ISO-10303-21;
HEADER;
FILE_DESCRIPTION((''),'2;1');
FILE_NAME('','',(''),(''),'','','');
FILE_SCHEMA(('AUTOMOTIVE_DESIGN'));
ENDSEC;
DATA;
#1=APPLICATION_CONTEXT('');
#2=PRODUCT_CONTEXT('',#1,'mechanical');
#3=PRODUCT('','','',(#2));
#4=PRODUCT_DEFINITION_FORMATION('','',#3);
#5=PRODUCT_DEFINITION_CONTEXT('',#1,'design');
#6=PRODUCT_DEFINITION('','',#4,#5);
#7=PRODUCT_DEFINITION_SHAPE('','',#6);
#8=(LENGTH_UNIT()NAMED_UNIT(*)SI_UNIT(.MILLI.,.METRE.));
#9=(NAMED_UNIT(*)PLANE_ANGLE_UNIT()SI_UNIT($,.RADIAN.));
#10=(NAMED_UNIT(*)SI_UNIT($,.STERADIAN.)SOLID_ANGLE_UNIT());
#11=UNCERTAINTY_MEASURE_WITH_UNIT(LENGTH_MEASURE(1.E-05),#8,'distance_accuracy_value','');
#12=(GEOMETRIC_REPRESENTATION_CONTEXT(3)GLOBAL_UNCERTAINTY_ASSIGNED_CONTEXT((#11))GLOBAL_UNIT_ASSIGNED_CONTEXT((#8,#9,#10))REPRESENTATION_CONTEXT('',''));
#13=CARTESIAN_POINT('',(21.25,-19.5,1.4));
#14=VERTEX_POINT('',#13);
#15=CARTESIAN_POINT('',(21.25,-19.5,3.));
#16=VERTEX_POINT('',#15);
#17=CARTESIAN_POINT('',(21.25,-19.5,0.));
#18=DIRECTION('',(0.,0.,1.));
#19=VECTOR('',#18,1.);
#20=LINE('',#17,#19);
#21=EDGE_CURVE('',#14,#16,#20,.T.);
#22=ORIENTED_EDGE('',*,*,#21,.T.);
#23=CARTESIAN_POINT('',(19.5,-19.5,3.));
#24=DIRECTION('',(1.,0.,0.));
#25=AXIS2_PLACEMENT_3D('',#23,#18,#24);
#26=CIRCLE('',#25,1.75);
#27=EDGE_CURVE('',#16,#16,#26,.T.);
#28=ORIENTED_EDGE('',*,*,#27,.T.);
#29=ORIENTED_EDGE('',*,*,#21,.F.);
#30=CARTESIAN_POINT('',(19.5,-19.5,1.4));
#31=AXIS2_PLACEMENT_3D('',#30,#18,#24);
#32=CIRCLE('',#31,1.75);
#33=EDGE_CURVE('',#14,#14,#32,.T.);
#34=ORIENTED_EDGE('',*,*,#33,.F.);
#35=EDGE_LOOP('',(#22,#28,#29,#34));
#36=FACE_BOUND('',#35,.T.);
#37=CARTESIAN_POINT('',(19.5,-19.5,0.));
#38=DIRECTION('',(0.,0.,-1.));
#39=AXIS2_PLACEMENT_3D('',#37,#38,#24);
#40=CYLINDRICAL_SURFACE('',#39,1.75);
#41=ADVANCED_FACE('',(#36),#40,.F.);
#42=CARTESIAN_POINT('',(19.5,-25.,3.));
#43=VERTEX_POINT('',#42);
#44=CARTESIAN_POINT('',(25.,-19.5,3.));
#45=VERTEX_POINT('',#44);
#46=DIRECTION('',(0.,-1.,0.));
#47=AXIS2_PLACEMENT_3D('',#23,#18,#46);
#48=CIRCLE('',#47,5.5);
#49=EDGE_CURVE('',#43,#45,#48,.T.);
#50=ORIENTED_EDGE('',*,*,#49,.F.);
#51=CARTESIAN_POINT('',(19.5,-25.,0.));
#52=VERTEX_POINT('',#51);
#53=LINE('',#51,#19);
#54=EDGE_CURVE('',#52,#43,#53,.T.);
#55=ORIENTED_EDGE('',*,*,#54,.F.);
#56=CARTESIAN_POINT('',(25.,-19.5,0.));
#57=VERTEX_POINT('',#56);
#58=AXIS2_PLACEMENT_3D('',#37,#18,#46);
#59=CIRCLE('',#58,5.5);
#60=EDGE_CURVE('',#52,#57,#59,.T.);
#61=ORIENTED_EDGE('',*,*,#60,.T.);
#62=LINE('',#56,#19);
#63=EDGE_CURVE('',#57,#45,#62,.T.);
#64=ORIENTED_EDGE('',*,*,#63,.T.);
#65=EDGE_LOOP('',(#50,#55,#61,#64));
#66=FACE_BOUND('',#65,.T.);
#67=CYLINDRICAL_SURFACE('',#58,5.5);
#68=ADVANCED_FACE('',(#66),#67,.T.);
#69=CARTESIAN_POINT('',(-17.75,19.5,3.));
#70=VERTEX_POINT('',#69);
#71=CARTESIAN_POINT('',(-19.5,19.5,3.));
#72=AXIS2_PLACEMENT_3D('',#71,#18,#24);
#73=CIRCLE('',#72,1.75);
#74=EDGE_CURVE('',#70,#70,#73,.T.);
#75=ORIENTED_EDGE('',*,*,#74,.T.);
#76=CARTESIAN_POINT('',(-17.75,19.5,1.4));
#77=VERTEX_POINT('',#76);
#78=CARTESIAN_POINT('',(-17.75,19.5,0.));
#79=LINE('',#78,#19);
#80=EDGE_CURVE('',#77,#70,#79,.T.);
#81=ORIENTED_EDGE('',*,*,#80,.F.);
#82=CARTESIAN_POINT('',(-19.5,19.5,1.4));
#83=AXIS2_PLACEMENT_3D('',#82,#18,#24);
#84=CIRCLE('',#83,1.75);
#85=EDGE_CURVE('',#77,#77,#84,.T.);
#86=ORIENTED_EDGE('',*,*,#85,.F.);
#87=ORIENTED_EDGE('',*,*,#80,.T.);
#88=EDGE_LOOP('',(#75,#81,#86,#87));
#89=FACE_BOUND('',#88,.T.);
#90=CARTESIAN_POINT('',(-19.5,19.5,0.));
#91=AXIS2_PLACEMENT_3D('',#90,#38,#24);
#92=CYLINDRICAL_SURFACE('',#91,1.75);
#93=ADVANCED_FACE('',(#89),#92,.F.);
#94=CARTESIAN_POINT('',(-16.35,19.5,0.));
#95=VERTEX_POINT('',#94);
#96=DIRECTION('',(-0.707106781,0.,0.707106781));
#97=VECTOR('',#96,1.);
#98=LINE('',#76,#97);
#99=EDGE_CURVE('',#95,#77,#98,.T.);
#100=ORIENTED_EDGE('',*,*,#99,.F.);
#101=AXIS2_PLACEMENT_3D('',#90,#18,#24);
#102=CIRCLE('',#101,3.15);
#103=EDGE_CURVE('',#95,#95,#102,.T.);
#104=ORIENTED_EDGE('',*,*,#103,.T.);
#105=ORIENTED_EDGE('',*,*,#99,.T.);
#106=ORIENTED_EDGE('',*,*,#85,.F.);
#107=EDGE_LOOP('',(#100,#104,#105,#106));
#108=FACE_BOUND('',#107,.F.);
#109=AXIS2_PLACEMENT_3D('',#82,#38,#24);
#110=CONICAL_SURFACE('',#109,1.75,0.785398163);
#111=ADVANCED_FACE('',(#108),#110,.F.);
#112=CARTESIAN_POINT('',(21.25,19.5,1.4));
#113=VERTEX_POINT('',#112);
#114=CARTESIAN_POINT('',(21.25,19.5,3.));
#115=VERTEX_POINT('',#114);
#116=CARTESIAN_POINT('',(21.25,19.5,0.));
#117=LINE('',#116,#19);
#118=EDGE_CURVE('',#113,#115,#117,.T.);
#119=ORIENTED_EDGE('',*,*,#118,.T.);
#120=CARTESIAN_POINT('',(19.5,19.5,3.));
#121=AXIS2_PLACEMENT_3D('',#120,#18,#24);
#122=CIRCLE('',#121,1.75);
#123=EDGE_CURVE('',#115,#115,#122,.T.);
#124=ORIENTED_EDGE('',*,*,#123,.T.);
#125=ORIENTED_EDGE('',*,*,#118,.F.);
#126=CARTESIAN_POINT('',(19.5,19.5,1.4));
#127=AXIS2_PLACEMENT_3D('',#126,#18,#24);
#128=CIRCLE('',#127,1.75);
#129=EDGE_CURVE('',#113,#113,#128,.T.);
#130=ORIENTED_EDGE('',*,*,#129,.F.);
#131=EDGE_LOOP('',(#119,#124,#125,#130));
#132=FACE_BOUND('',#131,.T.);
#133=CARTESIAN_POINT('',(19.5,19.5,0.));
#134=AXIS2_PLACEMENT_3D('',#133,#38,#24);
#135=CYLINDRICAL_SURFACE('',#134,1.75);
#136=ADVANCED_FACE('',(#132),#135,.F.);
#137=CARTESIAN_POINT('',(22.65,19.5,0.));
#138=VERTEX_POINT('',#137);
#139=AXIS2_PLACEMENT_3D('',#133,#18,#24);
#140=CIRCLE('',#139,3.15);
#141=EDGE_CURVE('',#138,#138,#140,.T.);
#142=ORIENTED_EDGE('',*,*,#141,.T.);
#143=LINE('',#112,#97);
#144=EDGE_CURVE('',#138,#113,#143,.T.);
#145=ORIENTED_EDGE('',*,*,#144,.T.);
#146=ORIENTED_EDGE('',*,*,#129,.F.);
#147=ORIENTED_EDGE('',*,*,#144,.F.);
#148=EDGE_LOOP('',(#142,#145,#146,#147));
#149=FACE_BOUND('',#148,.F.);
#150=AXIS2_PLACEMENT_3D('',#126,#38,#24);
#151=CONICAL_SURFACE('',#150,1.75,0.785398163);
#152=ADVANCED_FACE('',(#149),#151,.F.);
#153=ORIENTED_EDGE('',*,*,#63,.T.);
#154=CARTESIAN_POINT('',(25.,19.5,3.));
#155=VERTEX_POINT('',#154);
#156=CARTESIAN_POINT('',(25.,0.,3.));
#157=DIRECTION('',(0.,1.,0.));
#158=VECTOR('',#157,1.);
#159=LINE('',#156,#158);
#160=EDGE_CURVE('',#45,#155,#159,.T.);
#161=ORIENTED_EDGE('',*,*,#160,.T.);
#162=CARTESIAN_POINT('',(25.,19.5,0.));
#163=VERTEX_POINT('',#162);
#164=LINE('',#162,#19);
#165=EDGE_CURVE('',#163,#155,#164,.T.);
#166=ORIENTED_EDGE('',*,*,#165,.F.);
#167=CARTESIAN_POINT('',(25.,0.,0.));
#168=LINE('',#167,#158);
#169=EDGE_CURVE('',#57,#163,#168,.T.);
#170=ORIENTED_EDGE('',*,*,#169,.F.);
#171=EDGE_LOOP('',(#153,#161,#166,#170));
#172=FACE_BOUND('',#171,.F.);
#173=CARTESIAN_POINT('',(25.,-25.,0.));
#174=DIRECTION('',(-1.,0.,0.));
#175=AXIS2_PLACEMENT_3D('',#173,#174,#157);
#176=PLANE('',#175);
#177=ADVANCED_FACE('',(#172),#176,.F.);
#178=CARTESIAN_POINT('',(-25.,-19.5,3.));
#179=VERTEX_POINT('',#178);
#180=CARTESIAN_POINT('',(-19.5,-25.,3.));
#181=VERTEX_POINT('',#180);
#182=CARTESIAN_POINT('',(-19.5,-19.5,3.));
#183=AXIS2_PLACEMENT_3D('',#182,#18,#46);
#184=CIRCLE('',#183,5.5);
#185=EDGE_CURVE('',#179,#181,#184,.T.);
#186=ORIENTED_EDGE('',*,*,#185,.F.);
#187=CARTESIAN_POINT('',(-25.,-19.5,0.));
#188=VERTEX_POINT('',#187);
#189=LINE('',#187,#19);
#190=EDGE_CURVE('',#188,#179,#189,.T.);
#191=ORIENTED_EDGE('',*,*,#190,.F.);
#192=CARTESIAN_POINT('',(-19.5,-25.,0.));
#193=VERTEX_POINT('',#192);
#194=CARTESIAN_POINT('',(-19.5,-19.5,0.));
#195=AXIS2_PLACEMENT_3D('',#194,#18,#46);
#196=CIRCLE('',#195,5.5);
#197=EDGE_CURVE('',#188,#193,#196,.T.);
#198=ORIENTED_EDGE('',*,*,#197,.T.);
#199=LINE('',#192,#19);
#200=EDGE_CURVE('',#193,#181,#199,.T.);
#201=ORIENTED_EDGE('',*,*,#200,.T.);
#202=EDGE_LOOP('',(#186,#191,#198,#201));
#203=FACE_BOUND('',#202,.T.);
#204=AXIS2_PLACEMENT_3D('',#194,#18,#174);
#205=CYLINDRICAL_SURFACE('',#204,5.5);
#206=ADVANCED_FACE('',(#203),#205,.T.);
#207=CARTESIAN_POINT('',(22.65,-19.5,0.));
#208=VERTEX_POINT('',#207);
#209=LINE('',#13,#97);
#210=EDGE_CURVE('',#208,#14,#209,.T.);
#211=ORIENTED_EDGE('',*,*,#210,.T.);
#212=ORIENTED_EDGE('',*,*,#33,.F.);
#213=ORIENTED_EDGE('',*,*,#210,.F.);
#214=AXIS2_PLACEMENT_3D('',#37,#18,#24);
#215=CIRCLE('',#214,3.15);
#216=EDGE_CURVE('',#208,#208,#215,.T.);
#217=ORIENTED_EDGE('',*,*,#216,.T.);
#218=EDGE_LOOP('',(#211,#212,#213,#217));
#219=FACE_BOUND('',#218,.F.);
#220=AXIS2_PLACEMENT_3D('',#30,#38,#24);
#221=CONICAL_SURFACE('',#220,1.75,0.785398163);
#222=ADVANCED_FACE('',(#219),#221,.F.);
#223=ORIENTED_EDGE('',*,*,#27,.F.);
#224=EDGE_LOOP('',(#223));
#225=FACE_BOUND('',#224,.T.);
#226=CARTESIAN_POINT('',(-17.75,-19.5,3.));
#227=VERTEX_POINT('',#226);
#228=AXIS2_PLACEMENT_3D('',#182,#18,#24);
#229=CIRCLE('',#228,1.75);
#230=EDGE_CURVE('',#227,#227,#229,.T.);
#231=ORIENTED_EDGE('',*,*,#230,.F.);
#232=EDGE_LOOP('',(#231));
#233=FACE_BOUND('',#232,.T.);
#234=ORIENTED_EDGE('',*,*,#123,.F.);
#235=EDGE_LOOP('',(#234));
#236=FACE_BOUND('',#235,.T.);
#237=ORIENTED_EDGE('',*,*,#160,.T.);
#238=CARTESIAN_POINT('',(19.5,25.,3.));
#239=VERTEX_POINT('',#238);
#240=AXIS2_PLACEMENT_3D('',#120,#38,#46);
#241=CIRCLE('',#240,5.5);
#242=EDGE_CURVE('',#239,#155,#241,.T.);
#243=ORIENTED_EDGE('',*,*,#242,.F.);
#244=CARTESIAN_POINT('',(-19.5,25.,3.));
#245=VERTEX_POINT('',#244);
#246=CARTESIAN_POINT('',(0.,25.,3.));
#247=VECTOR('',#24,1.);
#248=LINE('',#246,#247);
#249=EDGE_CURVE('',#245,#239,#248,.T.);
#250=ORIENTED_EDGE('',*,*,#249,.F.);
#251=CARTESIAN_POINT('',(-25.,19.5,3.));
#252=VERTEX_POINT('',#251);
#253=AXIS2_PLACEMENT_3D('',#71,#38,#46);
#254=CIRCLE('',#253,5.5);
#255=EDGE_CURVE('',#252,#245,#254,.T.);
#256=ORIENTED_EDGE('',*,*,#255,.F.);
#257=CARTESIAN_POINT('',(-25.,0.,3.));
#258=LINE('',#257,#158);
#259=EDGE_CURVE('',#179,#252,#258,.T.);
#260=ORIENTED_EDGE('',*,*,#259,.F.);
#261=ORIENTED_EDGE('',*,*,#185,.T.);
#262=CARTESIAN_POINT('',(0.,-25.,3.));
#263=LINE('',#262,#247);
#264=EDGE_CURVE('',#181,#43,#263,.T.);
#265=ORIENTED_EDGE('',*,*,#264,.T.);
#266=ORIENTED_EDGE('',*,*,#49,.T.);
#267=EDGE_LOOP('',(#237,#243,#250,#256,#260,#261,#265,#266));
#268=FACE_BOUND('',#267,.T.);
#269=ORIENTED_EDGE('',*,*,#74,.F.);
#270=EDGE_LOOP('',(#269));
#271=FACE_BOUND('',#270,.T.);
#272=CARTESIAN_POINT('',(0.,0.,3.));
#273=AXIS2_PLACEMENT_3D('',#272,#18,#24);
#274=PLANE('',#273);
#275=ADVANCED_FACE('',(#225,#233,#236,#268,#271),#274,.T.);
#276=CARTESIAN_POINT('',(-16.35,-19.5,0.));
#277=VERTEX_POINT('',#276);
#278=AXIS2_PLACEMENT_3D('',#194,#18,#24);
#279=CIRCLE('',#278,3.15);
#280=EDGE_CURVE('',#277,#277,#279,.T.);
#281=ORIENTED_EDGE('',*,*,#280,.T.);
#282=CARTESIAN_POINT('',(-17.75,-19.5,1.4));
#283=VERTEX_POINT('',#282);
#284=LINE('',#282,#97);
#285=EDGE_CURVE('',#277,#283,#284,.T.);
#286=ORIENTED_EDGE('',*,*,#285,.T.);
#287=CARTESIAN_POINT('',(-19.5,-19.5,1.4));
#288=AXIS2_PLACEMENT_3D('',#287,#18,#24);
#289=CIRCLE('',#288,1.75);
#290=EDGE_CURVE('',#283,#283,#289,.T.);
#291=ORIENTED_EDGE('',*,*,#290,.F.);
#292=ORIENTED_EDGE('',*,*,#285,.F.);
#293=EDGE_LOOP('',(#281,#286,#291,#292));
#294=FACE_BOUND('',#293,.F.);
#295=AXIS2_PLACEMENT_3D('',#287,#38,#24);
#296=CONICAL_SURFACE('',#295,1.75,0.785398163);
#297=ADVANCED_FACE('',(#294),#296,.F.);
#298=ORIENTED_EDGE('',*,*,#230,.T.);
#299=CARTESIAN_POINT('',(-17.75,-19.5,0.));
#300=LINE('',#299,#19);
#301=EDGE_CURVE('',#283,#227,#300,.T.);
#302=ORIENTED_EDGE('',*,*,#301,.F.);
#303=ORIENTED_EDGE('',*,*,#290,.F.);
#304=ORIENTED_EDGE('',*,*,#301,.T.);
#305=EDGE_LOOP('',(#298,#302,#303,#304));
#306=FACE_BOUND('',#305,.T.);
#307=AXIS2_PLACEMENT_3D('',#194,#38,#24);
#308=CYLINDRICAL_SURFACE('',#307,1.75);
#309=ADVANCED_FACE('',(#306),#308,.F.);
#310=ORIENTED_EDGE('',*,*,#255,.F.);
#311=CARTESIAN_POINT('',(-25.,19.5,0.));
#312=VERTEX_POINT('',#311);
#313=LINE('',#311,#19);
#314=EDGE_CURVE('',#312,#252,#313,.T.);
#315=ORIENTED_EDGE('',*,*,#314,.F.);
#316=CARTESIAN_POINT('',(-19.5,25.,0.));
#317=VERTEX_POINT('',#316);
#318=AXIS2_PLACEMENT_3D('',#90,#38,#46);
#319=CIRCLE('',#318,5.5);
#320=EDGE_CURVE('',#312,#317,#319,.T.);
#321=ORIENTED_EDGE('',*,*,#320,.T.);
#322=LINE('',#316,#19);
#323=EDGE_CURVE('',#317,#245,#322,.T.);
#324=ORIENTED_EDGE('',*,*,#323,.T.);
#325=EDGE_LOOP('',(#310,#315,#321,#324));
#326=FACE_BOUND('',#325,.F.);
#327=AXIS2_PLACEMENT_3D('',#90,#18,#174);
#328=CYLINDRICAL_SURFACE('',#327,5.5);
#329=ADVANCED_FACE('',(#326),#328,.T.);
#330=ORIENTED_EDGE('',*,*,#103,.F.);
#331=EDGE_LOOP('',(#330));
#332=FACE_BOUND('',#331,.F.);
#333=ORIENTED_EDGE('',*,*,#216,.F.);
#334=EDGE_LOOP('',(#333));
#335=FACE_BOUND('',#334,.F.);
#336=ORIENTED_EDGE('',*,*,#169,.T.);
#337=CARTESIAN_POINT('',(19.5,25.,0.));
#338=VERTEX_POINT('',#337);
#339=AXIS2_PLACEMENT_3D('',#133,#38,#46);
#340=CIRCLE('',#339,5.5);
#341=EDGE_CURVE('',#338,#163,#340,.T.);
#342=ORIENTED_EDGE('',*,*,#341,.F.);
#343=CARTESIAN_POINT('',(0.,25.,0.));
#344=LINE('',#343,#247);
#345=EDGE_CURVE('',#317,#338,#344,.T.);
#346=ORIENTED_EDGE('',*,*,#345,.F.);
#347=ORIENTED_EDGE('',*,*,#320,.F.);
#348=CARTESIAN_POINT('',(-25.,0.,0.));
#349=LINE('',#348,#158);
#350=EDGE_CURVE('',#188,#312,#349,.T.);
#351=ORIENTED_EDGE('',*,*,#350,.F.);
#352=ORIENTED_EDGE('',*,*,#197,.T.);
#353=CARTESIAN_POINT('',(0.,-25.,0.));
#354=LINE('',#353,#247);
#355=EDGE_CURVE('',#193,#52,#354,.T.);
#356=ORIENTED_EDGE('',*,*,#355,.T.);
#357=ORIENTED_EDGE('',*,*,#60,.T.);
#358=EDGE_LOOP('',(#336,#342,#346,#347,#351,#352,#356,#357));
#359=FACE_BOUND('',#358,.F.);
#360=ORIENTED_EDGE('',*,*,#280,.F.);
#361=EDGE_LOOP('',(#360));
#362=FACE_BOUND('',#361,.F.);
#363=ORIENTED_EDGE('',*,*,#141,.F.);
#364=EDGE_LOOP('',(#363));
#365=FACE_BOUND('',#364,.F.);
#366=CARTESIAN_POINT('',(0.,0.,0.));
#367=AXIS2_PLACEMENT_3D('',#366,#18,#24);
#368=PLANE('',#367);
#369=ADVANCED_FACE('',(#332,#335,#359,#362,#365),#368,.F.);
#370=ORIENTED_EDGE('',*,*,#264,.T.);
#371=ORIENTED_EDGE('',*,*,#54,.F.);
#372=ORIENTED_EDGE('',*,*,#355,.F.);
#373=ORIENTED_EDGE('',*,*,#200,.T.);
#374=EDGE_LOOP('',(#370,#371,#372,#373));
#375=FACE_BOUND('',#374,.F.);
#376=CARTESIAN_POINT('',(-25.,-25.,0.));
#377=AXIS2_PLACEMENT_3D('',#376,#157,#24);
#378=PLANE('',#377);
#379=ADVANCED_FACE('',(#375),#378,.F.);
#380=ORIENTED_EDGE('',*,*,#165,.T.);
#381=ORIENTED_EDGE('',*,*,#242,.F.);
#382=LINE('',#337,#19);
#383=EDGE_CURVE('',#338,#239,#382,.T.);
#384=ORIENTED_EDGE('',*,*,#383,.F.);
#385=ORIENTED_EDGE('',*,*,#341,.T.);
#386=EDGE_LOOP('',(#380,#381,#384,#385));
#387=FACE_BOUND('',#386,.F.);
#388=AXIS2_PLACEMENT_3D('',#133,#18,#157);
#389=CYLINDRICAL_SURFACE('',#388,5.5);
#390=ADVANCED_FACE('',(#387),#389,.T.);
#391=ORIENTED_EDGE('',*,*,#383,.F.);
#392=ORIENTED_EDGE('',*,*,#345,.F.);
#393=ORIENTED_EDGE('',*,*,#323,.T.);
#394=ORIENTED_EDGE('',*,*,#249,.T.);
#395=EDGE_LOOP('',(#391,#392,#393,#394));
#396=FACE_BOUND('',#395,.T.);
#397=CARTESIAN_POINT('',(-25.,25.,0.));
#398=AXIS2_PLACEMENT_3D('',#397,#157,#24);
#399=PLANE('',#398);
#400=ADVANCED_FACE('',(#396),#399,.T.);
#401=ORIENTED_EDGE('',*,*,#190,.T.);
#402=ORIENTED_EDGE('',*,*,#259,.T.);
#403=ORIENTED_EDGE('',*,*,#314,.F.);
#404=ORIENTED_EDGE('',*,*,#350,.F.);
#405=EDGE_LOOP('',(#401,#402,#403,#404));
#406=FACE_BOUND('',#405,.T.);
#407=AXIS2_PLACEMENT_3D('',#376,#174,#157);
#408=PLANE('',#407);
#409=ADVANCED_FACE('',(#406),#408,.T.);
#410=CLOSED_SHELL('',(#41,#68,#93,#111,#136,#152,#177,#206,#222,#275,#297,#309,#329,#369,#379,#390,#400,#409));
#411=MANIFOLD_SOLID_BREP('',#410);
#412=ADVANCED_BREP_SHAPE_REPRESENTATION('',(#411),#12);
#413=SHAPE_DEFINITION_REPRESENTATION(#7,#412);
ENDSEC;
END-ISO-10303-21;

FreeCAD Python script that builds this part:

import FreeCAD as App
import Part
import Sketcher

V = App.Vector


def edges_at(feature, points):
    """Names of the edges that pass closest to the given points."""
    edges = feature.Shape.Edges
    near = lambda p: min(range(len(edges)), key=lambda i: edges[i].distToShape(Part.Vertex(*p))[0])
    return sorted({f"Edge{near(p) + 1}" for p in points})

doc = App.newDocument("Part")
body = doc.addObject("PartDesign::Body", "Body")

sketch1 = body.newObject("Sketcher::SketchObject", "Sketch")
sketch1.AttachmentSupport = (doc.getObject("XY_Plane"), [""])
sketch1.MapMode = "FlatFace"
sketch1.addGeometry(Part.LineSegment(V(-25, 25, 0), V(-25, -25, 0)), False)
sketch1.addGeometry(Part.LineSegment(V(-25, -25, 0), V(25, -25, 0)), False)
sketch1.addGeometry(Part.LineSegment(V(25, -25, 0), V(25, 25, 0)), False)
sketch1.addGeometry(Part.LineSegment(V(25, 25, 0), V(-25, 25, 0)), False)
sketch1.addGeometry(Part.Circle(V(-19.5, -19.5, 0), V(0, 0, 1), 1.75), False)
sketch1.addGeometry(Part.Circle(V(19.5, -19.5, 0), V(0, 0, 1), 1.75), False)
sketch1.addGeometry(Part.Circle(V(-19.5, 19.5, 0), V(0, 0, 1), 1.75), False)
sketch1.addGeometry(Part.Circle(V(19.5, 19.5, 0), V(0, 0, 1), 1.75), False)
sketch1.addConstraint(Sketcher.Constraint("Coincident", 0, 2, 1, 1))
sketch1.addConstraint(Sketcher.Constraint("Coincident", 1, 2, 2, 1))
sketch1.addConstraint(Sketcher.Constraint("Coincident", 2, 2, 3, 1))
sketch1.addConstraint(Sketcher.Constraint("Coincident", 3, 2, 0, 1))
sketch1.addConstraint(Sketcher.Constraint("Vertical", 0))
sketch1.addConstraint(Sketcher.Constraint("Horizontal", 1))
sketch1.addConstraint(Sketcher.Constraint("Vertical", 2))
sketch1.addConstraint(Sketcher.Constraint("Horizontal", 3))
sketch1.addConstraint(Sketcher.Constraint("Equal", 4, 5))
sketch1.addConstraint(Sketcher.Constraint("Equal", 5, 6))
sketch1.addConstraint(Sketcher.Constraint("Equal", 6, 7))
sketch1.addConstraint(Sketcher.Constraint("Symmetric", 5, 3, 6, 3, -1, 1))
sketch1.addConstraint(Sketcher.Constraint("Symmetric", 4, 3, 7, 3, -1, 1))
sketch1.addConstraint(Sketcher.Constraint("Symmetric", 0, 2, 2, 2, -1, 1))
sketch1.addConstraint(Sketcher.Constraint("Symmetric", 4, 3, 5, 3, -2))
sketch1.addConstraint(Sketcher.Constraint("Equal", 3, 0))
sketch1.addConstraint(Sketcher.Constraint("Diameter", 4, 3.5))
sketch1.addConstraint(Sketcher.Constraint("DistanceX", 1, 1, 1, 2, 50.0))
sketch1.addConstraint(Sketcher.Constraint("DistanceX", 4, 3, 5, 3, 39.0))
sketch1.addConstraint(Sketcher.Constraint("DistanceY", 4, 3, 6, 3, 39.0))
pad1 = body.newObject("PartDesign::Pad", "Pad")
pad1.Profile = sketch1
pad1.Length = 3
doc.recompute()

fillet = body.newObject("PartDesign::Fillet", "Fillet")
fillet.Base = (pad1, edges_at(pad1, [
    (-25, -25, 1.5),
    (25, -25, 1.5),
    (25, 25, 1.5),
    (-25, 25, 1.5),
]))
fillet.Radius = 5.5
doc.recompute()

chamfer = body.newObject("PartDesign::Chamfer", "Chamfer")
chamfer.Base = (fillet, edges_at(fillet, [
    (-21.25, -19.5, 0),
    (-21.25, 19.5, 0),
    (17.75, 19.5, 0),
    (17.75, -19.5, 0),
]))
chamfer.Size = 1.4

doc.recompute()
